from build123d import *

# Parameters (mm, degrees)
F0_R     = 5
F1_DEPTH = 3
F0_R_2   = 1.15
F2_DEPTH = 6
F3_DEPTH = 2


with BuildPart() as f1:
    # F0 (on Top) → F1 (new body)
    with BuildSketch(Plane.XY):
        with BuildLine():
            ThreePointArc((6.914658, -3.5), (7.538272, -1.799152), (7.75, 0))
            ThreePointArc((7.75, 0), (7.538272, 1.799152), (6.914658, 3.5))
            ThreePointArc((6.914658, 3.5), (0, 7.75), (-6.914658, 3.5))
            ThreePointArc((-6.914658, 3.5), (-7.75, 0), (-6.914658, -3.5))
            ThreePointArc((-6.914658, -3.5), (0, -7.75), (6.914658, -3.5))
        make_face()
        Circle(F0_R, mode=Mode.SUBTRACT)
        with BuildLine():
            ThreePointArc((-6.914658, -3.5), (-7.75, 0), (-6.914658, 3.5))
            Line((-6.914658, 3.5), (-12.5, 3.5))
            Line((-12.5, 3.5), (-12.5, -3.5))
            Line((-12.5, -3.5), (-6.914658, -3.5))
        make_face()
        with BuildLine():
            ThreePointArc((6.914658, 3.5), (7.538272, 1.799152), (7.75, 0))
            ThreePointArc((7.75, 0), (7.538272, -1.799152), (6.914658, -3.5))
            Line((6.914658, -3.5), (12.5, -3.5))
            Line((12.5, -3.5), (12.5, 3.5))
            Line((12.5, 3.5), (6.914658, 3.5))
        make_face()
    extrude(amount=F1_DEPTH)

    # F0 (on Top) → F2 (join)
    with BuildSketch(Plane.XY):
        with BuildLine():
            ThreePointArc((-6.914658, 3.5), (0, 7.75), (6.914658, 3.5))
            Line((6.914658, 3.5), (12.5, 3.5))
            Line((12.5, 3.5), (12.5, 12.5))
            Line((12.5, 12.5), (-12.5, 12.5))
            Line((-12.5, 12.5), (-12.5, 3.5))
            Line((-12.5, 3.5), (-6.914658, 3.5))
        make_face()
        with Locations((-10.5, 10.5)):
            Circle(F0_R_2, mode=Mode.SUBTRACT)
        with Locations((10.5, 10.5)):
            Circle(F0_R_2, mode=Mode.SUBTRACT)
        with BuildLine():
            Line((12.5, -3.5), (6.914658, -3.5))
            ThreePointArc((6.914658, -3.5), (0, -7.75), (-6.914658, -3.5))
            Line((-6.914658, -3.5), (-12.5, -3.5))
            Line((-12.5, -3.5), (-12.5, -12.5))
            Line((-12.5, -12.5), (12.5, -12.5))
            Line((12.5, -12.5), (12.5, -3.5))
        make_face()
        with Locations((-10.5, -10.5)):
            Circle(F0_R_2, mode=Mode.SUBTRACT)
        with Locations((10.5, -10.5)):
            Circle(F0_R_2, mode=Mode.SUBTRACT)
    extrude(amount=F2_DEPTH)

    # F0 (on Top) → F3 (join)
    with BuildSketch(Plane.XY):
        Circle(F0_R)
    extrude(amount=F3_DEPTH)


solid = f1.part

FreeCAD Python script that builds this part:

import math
import FreeCAD as App
import Part
import Sketcher
Q = App.Units.Quantity

doc = App.newDocument("Part")
body = doc.addObject("PartDesign::Body", "Body")

sketch1 = body.newObject("Sketcher::SketchObject", "Sketch")
sketch1.AttachmentSupport = (doc.getObject("XY_Plane"), [""])
sketch1.MapMode = "FlatFace"
sketch1.addGeometry([
    Part.ArcOfCircle(Part.Circle(App.Vector(0, 0.000001, 0), App.Vector(0, 0, 1), 7.749999), math.radians(26.847211), math.radians(153.152789)),
    Part.LineSegment(App.Vector(-6.914658, 3.5, 0), App.Vector(-12.5, 3.5, 0)),
    Part.LineSegment(App.Vector(-12.5, 3.5, 0), App.Vector(-12.5, -3.5, 0)),
    Part.LineSegment(App.Vector(-12.5, -3.5, 0), App.Vector(-6.914658, -3.5, 0)),
    Part.ArcOfCircle(Part.Circle(App.Vector(0, -0.000001, 0), App.Vector(0, 0, 1), 7.749999), math.radians(-153.152789), math.radians(-26.847211)),
    Part.LineSegment(App.Vector(6.914658, -3.5, 0), App.Vector(12.5, -3.5, 0)),
    Part.LineSegment(App.Vector(12.5, -3.5, 0), App.Vector(12.5, 3.5, 0)),
    Part.LineSegment(App.Vector(12.5, 3.5, 0), App.Vector(6.914658, 3.5, 0)),
    Part.Circle(App.Vector(0, 0, 0), App.Vector(0, 0, 1), 5),
], False)
sketch1.addConstraint([
    Sketcher.Constraint("Coincident", 0, 2, 1, 1),
    Sketcher.Constraint("Coincident", 1, 2, 2, 1),
    Sketcher.Constraint("Coincident", 2, 2, 3, 1),
    Sketcher.Constraint("Coincident", 3, 2, 4, 1),
    Sketcher.Constraint("Coincident", 4, 2, 5, 1),
    Sketcher.Constraint("Coincident", 5, 2, 6, 1),
    Sketcher.Constraint("Coincident", 6, 2, 7, 1),
    Sketcher.Constraint("Coincident", 7, 2, 0, 1),
    Sketcher.Constraint("Horizontal", 1),
    Sketcher.Constraint("Vertical", 2),
    Sketcher.Constraint("Horizontal", 3),
    Sketcher.Constraint("Horizontal", 5),
    Sketcher.Constraint("Vertical", 6),
    Sketcher.Constraint("Horizontal", 7),
    Sketcher.Constraint("Coincident", 0, 3, -1, 1),
    Sketcher.Constraint("Coincident", 4, 3, -1, 1),
    Sketcher.Constraint("Coincident", 8, 3, -1, 1),
    Sketcher.Constraint("Equal", 0, 4),
    Sketcher.Constraint("Symmetric", 1, 2, 5, 2, -1, 1),
    Sketcher.Constraint("Horizontal", 3, 2, 4, 2),
    Sketcher.Constraint("Horizontal", 1, 2, 6, 2),
    Sketcher.Constraint("Diameter", 8, Q("10 mm")),
    Sketcher.Constraint("DistanceY", 2, 2, 2, 1, Q("7 mm")),
    Sketcher.Constraint("Radius", 0, Q("7.749999 mm")),
    Sketcher.Constraint("DistanceX", 1, 2, -1, 1, Q("12.5 mm")),
])
pad1 = body.newObject("PartDesign::Pad", "Pad")
pad1.Profile = sketch1
pad1.Length = 3

sketch2 = body.newObject("Sketcher::SketchObject", "Sketch001")
sketch2.AttachmentSupport = (doc.getObject("XY_Plane"), [""])
sketch2.MapMode = "FlatFace"
sketch2.addGeometry([
    Part.ArcOfCircle(Part.Circle(App.Vector(0, 0.000001, 0), App.Vector(0, 0, 1), 7.749999), math.radians(26.847211), math.radians(153.152789)),
    Part.LineSegment(App.Vector(6.914658, 3.5, 0), App.Vector(12.5, 3.5, 0)),
    Part.LineSegment(App.Vector(12.5, 3.5, 0), App.Vector(12.5, 12.5, 0)),
    Part.LineSegment(App.Vector(12.5, 12.5, 0), App.Vector(-12.5, 12.5, 0)),
    Part.LineSegment(App.Vector(-12.5, 12.5, 0), App.Vector(-12.5, 3.5, 0)),
    Part.LineSegment(App.Vector(-12.5, 3.5, 0), App.Vector(-6.914658, 3.5, 0)),
    Part.Circle(App.Vector(-10.5, 10.5, 0), App.Vector(0, 0, 1), 1.15),
    Part.Circle(App.Vector(10.5, 10.5, 0), App.Vector(0, 0, 1), 1.15),
    Part.LineSegment(App.Vector(12.5, -3.5, 0), App.Vector(6.914658, -3.5, 0)),
    Part.ArcOfCircle(Part.Circle(App.Vector(0, -0.000001, 0), App.Vector(0, 0, 1), 7.749999), math.radians(-153.152789), math.radians(-26.847211)),
    Part.LineSegment(App.Vector(-6.914658, -3.5, 0), App.Vector(-12.5, -3.5, 0)),
    Part.LineSegment(App.Vector(-12.5, -3.5, 0), App.Vector(-12.5, -12.5, 0)),
    Part.LineSegment(App.Vector(-12.5, -12.5, 0), App.Vector(12.5, -12.5, 0)),
    Part.LineSegment(App.Vector(12.5, -12.5, 0), App.Vector(12.5, -3.5, 0)),
    Part.Circle(App.Vector(-10.5, -10.5, 0), App.Vector(0, 0, 1), 1.15),
    Part.Circle(App.Vector(10.5, -10.5, 0), App.Vector(0, 0, 1), 1.15),
], False)
sketch2.addConstraint([
    Sketcher.Constraint("Coincident", 0, 1, 1, 1),
    Sketcher.Constraint("Coincident", 1, 2, 2, 1),
    Sketcher.Constraint("Coincident", 2, 2, 3, 1),
    Sketcher.Constraint("Coincident", 3, 2, 4, 1),
    Sketcher.Constraint("Coincident", 4, 2, 5, 1),
    Sketcher.Constraint("Coincident", 5, 2, 0, 2),
    Sketcher.Constraint("Coincident", 8, 2, 9, 2),
    Sketcher.Constraint("Coincident", 9, 1, 10, 1),
    Sketcher.Constraint("Coincident", 10, 2, 11, 1),
    Sketcher.Constraint("Coincident", 11, 2, 12, 1),
    Sketcher.Constraint("Coincident", 12, 2, 13, 1),
    Sketcher.Constraint("Coincident", 13, 2, 8, 1),
    Sketcher.Constraint("Horizontal", 1),
    Sketcher.Constraint("Vertical", 2),
    Sketcher.Constraint("Horizontal", 3),
    Sketcher.Constraint("Vertical", 4),
    Sketcher.Constraint("Horizontal", 5),
    Sketcher.Constraint("Horizontal", 8),
    Sketcher.Constraint("Horizontal", 10),
    Sketcher.Constraint("Vertical", 11),
    Sketcher.Constraint("Horizontal", 12),
    Sketcher.Constraint("Vertical", 13),
    Sketcher.Constraint("Coincident", 0, 3, -1, 1),
    Sketcher.Constraint("Coincident", 9, 3, -1, 1),
    Sketcher.Constraint("Equal", 6, 7),
    Sketcher.Constraint("Equal", 0, 9),
    Sketcher.Constraint("Equal", 7, 14),
    Sketcher.Constraint("Equal", 14, 15),
    Sketcher.Constraint("Symmetric", 7, 3, 14, 3, -1, 1),
    Sketcher.Constraint("Symmetric", 6, 3, 15, 3, -1, 1),
    Sketcher.Constraint("Symmetric", 1, 2, 10, 2, -1, 1),
    Sketcher.Constraint("Symmetric", 3, 2, 12, 2, -1, 1),
    Sketcher.Constraint("Symmetric", 6, 3, 7, 3, -2),
    Sketcher.Constraint("Symmetric", 1, 2, 4, 2, -2),
    Sketcher.Constraint("Horizontal", 8, 2, 9, 1),
    Sketcher.Constraint("Diameter", 6, Q("2.3 mm")),
    Sketcher.Constraint("DistanceX", 3, 2, 3, 1, Q("25 mm")),
    Sketcher.Constraint("DistanceY", 2, 1, 2, 2, Q("9 mm")),
    Sketcher.Constraint("Radius", 0, Q("7.749999 mm")),
    Sketcher.Constraint("DistanceX", 6, 3, 7, 3, Q("21 mm")),
    Sketcher.Constraint("DistanceY", 14, 3, 6, 3, Q("21 mm")),
    Sketcher.Constraint("DistanceY", 0, 1, 7, 3, Q("7 mm")),
])
pad2 = body.newObject("PartDesign::Pad", "Pad001")
pad2.Profile = sketch2
pad2.Length = 6

sketch3 = body.newObject("Sketcher::SketchObject", "Sketch002")
sketch3.AttachmentSupport = (doc.getObject("XY_Plane"), [""])
sketch3.MapMode = "FlatFace"
sketch3.addGeometry(Part.Circle(App.Vector(0, 0, 0), App.Vector(0, 0, 1), 5), False)
sketch3.addConstraint([
    Sketcher.Constraint("Coincident", 0, 3, -1, 1),
    Sketcher.Constraint("Diameter", 0, Q("10 mm")),
])
pad3 = body.newObject("PartDesign::Pad", "Pad002")
pad3.Profile = sketch3
pad3.Length = 2

doc.recompute()
